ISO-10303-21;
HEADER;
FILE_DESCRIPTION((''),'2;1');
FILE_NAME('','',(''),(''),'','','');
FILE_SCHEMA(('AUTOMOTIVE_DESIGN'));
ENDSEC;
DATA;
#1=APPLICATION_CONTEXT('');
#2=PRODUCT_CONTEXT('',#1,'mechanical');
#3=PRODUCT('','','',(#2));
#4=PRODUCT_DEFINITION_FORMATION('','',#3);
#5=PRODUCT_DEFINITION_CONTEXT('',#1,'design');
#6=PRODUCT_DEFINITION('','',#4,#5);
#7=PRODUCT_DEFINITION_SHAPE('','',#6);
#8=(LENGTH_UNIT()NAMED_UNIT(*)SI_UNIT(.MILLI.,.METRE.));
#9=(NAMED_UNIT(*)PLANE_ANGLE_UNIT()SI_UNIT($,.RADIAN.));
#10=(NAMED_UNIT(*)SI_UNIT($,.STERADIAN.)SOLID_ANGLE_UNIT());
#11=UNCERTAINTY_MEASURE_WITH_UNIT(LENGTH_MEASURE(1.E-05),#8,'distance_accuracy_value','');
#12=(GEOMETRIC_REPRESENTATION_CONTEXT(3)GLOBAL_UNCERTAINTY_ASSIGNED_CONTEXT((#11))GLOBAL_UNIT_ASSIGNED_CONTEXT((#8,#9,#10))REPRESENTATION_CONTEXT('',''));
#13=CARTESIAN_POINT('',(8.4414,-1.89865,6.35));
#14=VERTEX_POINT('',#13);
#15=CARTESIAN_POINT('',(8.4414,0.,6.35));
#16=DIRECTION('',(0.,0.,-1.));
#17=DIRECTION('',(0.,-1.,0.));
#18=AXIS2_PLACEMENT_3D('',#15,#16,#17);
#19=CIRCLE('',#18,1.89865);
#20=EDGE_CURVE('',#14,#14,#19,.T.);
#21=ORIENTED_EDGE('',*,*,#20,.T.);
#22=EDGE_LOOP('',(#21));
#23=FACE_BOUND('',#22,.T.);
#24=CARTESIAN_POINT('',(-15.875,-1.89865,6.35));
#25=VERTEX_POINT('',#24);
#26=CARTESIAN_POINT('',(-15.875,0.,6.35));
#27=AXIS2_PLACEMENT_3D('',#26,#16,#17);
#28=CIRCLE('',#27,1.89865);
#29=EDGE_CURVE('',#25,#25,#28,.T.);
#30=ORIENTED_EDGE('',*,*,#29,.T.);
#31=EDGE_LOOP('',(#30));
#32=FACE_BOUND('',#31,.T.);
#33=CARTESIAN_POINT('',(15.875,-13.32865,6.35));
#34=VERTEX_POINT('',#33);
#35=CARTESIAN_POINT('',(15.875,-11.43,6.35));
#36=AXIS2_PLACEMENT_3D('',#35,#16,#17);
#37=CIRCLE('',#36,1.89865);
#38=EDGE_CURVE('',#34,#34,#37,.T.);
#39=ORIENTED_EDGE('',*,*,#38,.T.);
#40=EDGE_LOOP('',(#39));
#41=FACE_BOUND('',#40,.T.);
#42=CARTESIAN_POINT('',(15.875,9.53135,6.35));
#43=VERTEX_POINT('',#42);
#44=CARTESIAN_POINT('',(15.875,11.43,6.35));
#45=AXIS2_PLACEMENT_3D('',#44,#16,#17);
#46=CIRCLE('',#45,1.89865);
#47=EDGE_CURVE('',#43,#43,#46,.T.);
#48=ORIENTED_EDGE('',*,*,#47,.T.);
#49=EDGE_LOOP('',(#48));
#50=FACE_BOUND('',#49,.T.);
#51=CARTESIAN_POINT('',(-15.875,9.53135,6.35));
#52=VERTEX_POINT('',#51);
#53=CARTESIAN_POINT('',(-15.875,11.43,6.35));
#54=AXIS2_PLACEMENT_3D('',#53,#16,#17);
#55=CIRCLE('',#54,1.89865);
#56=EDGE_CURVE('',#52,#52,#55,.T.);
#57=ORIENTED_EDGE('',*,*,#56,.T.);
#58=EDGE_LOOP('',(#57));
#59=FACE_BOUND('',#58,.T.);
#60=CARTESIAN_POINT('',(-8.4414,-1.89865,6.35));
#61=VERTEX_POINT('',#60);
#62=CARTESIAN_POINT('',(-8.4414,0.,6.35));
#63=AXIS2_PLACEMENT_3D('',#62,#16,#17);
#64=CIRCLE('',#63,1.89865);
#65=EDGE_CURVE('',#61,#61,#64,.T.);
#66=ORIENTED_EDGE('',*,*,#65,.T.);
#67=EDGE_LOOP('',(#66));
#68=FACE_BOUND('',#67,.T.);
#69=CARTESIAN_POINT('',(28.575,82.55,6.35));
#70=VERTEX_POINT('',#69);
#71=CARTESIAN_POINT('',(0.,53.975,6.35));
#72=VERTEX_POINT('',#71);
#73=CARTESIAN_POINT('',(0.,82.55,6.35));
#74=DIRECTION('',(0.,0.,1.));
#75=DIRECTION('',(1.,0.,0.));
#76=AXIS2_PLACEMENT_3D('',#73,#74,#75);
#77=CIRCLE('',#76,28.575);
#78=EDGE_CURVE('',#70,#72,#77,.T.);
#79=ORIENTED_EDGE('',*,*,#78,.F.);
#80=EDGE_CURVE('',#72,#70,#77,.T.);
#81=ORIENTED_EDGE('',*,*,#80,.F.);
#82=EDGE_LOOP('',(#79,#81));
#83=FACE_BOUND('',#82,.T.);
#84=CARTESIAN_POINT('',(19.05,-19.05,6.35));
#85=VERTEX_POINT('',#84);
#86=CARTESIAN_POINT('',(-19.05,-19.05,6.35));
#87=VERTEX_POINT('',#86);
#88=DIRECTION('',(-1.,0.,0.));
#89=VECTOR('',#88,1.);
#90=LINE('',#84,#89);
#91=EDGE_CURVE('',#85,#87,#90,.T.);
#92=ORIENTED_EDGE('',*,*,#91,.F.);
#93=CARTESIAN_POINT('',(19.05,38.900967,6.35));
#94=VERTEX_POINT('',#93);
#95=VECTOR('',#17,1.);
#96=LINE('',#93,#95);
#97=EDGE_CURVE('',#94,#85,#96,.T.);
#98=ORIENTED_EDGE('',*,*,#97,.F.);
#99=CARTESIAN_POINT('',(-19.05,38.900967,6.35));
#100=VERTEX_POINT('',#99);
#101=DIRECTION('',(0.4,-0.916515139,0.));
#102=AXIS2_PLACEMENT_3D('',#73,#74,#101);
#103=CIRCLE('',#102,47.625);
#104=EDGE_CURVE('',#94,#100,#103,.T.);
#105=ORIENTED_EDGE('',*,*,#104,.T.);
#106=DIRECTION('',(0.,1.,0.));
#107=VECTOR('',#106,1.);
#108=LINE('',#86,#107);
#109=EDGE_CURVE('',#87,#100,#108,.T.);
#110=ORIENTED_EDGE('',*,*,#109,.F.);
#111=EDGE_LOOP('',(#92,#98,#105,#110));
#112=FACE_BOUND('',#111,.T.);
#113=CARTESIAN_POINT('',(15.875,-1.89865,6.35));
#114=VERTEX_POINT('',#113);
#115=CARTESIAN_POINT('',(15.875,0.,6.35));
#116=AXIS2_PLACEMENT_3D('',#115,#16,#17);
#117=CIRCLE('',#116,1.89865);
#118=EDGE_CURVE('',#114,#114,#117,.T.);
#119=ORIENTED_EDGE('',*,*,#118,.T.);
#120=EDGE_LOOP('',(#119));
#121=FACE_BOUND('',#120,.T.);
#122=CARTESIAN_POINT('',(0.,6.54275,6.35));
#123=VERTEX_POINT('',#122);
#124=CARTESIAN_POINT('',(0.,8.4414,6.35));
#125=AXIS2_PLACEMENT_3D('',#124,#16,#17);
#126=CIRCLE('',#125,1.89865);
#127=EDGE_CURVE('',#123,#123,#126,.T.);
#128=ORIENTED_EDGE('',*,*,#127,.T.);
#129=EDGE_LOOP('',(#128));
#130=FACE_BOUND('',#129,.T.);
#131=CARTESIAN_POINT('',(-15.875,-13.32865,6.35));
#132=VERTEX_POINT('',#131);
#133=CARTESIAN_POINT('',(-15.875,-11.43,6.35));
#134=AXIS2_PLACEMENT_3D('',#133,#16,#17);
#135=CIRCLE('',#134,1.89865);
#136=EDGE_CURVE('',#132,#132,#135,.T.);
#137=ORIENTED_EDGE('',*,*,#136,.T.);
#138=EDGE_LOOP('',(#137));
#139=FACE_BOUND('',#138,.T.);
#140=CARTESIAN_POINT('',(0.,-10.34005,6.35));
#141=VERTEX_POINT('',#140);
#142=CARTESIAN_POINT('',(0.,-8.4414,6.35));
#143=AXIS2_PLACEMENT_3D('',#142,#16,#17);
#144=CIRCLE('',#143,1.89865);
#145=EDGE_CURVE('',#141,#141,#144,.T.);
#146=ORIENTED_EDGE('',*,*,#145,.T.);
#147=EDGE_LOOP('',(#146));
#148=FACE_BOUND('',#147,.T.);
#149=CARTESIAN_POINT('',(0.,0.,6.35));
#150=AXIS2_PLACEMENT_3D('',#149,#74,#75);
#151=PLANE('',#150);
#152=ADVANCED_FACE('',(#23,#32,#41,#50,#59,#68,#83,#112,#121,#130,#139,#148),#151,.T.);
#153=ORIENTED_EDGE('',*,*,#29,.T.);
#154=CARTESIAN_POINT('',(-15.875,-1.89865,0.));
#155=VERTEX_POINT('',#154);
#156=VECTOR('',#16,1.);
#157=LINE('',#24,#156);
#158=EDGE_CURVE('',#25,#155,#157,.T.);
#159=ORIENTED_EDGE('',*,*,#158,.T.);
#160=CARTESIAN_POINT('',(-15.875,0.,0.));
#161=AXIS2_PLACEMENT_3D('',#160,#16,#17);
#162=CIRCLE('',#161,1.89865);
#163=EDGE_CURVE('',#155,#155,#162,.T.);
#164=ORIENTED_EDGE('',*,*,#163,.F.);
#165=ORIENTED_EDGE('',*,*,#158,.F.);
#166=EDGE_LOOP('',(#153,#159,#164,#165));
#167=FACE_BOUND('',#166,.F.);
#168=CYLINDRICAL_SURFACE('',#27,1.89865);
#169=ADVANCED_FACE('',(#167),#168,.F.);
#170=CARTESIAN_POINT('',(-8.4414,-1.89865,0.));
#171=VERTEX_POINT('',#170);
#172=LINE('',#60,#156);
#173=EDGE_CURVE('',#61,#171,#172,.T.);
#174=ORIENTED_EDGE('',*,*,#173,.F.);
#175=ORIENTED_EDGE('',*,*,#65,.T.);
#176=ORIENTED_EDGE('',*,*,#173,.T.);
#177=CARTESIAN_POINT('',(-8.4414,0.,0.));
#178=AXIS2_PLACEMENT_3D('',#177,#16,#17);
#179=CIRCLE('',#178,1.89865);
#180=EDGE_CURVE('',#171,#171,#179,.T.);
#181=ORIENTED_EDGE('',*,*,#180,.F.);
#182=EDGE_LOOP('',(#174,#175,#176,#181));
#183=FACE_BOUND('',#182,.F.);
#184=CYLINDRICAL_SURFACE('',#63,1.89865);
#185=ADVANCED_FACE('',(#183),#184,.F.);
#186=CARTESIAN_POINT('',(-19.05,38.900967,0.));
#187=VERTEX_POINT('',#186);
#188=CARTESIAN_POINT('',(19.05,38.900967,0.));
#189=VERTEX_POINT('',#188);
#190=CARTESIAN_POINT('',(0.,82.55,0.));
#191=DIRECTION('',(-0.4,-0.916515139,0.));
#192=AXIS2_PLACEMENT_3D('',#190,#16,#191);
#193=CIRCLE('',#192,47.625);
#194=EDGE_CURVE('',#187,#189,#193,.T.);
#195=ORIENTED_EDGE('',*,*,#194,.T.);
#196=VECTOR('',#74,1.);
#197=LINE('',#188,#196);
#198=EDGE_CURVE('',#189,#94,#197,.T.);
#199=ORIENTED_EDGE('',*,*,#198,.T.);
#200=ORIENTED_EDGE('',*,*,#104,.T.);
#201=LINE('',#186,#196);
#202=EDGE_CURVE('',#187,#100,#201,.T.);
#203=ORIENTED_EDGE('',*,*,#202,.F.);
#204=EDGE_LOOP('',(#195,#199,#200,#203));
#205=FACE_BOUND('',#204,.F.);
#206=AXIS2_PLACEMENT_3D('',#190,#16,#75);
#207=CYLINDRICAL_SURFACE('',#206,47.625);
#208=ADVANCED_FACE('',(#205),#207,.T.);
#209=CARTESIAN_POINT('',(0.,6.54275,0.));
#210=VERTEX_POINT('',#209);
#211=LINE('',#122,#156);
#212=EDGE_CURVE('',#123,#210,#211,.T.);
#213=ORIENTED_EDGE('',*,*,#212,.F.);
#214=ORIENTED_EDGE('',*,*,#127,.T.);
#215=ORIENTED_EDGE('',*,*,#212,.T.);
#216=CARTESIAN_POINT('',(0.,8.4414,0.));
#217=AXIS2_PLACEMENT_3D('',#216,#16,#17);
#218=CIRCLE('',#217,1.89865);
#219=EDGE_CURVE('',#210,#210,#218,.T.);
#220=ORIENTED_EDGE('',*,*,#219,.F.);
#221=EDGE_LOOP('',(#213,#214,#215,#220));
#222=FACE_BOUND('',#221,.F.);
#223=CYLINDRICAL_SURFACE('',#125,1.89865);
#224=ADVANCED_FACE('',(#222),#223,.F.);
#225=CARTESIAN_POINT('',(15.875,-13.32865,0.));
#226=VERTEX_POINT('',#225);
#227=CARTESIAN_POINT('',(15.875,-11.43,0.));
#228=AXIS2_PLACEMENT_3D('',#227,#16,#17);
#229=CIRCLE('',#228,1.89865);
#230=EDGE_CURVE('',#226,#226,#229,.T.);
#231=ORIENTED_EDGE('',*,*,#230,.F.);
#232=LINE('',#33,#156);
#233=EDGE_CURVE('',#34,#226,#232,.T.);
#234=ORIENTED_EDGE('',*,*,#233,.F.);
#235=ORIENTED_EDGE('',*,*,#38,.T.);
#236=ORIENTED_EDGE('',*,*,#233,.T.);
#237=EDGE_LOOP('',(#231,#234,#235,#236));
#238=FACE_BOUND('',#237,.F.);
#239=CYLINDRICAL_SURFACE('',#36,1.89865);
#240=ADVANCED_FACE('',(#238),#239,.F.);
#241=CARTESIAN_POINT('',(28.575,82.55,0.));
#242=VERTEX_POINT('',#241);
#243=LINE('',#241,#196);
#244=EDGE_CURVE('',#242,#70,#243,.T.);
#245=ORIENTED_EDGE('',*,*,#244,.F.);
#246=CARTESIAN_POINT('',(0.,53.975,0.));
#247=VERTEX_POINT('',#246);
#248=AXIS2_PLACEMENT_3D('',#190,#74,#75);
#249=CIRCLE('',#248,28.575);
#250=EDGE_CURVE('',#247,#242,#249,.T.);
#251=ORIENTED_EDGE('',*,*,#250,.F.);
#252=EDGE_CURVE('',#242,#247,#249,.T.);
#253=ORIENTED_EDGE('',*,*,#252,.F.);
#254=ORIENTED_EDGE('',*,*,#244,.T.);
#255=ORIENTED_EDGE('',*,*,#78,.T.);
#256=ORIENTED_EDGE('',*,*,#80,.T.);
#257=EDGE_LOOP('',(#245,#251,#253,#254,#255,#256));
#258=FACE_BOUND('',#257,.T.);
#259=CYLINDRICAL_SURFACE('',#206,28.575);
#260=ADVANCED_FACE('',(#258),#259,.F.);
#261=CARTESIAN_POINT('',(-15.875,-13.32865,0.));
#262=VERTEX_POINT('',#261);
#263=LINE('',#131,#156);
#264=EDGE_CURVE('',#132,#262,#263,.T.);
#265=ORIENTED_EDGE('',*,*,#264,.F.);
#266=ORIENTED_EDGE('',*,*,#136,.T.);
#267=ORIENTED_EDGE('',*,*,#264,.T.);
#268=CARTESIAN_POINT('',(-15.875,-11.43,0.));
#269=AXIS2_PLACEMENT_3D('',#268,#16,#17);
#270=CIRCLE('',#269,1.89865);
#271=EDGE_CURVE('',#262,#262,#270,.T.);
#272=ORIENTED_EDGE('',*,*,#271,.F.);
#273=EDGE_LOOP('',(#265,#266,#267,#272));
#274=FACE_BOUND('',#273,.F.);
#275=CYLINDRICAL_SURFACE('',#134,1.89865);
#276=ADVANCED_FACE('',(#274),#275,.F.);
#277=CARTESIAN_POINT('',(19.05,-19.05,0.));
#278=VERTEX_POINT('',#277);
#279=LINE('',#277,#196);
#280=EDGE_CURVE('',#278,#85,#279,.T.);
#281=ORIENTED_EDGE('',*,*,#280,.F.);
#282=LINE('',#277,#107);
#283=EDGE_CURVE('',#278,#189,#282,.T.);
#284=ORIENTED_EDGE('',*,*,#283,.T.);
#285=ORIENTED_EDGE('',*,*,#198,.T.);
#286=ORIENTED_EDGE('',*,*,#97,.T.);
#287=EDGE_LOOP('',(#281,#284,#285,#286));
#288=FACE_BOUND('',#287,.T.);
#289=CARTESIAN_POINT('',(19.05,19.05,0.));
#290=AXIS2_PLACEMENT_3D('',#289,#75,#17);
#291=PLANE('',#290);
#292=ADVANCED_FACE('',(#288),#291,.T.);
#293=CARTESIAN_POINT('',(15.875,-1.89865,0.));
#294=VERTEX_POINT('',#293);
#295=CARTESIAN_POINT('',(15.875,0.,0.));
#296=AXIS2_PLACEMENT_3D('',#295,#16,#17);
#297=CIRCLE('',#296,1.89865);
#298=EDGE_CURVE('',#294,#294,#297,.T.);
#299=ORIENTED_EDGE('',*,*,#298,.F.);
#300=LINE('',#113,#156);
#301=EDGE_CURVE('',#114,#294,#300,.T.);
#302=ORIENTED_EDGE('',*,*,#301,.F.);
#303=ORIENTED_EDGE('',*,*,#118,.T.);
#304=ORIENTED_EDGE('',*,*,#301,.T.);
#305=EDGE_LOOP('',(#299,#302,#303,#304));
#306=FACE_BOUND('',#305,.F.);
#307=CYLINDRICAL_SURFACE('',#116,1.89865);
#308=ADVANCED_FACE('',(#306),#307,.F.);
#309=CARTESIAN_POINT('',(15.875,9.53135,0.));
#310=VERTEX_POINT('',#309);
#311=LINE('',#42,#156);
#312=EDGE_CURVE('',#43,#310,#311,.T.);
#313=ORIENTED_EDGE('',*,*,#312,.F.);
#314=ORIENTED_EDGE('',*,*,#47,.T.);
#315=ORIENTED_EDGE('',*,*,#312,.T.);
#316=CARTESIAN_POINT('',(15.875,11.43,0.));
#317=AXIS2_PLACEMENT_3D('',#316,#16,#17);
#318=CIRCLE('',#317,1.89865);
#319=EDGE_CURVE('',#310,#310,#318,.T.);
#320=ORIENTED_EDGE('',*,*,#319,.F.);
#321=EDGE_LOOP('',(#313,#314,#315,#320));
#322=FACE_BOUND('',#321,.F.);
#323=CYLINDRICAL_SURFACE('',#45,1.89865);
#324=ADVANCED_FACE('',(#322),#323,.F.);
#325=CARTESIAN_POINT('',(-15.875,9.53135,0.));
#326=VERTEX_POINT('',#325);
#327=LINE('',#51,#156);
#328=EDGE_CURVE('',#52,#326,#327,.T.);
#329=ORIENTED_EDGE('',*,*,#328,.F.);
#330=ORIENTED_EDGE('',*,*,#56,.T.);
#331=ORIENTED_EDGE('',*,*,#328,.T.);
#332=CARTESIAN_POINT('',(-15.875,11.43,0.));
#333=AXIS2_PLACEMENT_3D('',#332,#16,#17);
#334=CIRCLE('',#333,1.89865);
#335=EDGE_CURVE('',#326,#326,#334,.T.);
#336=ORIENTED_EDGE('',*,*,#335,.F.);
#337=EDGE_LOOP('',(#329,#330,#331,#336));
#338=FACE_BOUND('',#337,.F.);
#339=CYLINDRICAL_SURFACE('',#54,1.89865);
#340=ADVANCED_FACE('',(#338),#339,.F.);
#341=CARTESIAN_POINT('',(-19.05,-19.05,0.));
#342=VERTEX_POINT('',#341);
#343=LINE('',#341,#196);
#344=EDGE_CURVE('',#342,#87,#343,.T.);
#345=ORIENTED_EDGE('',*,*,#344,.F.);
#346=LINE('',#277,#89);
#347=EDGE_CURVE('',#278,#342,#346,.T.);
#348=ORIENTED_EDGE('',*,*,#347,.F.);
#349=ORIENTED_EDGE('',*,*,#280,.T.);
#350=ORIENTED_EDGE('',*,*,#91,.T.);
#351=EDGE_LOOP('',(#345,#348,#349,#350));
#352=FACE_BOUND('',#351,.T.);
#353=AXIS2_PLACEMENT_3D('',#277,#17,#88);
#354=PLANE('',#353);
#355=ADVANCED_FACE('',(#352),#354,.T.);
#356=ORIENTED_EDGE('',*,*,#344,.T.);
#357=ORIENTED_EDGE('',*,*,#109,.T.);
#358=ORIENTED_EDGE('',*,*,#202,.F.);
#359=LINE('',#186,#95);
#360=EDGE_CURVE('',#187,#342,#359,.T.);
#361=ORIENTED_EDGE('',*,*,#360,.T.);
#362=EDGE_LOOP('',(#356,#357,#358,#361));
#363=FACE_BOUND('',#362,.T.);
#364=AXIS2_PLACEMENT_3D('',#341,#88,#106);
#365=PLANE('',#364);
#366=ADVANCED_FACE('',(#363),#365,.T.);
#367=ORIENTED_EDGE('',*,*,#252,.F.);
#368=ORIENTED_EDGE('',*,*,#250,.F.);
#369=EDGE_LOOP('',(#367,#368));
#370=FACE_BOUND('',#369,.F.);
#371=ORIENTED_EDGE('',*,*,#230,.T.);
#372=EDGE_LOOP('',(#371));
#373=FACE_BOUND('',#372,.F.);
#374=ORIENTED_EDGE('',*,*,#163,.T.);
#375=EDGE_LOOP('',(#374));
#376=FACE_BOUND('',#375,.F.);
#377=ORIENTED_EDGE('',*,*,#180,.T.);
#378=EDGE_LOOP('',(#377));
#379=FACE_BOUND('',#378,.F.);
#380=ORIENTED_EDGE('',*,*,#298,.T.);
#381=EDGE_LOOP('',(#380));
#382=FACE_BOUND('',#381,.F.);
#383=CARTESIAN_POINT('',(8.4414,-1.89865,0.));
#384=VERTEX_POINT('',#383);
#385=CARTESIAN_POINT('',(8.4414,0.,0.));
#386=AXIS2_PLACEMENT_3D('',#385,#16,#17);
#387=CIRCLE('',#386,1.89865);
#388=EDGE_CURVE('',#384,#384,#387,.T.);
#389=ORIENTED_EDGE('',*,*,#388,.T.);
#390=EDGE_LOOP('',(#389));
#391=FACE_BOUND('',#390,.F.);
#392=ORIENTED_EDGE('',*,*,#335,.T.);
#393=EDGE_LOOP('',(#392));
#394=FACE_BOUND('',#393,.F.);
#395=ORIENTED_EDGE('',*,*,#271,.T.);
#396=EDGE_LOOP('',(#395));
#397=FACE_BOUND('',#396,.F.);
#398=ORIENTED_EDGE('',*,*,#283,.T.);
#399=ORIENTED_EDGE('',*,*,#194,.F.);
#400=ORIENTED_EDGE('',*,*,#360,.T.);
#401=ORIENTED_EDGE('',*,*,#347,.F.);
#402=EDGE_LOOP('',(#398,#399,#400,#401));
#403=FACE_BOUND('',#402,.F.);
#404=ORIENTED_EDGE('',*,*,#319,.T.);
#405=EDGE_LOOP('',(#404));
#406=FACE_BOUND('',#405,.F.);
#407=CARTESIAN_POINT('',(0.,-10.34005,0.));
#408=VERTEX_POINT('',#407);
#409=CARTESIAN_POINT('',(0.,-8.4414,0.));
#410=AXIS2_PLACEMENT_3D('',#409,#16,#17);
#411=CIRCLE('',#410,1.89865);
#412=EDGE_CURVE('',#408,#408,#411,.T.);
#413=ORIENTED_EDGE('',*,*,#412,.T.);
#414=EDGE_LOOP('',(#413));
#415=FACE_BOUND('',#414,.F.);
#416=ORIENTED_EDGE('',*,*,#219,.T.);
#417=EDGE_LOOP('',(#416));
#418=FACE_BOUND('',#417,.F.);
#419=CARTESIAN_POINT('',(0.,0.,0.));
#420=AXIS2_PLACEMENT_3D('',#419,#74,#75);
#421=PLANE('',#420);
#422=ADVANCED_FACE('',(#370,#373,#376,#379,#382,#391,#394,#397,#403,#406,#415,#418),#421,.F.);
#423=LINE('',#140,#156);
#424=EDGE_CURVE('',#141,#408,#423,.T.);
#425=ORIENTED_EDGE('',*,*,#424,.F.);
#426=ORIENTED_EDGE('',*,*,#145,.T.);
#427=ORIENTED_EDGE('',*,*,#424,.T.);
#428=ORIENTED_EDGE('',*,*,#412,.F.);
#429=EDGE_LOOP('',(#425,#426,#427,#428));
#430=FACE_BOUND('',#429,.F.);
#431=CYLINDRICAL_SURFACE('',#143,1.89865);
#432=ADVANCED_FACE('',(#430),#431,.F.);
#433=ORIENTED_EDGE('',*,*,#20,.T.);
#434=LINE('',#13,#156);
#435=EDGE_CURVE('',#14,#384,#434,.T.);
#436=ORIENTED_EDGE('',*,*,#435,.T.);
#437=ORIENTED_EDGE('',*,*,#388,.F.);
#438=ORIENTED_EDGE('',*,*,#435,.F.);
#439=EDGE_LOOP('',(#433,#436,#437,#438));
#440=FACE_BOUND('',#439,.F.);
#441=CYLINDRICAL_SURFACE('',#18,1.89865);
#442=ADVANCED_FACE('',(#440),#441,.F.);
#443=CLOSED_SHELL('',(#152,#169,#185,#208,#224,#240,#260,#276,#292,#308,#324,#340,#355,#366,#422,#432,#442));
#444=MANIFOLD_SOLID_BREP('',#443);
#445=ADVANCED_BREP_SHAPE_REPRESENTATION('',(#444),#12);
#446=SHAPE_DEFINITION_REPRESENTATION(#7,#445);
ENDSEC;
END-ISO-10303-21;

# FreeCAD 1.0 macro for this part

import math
import FreeCAD as App
import Part
import Sketcher
Q = App.Units.Quantity

doc = App.newDocument("Part")
body = doc.addObject("PartDesign::Body", "Body")

# Sketch on XY plane
sketch1 = body.newObject("Sketcher::SketchObject", "Sketch")
sketch1.AttachmentSupport = (doc.getObject("XY_Plane"), [""])
sketch1.MapMode = "FlatFace"
sketch1.addGeometry([
    Part.LineSegment(App.Vector(-19, -19, 0), App.Vector(19, -19, 0)),  # 0
    Part.LineSegment(App.Vector(19, -19, 0), App.Vector(19, 39, 0)),  # 1
    Part.ArcOfCircle(Part.Circle(App.Vector(0, 83, 0), App.Vector(0, 0, 1), 48), math.radians(-66), math.radians(246)),  # 2
    Part.LineSegment(App.Vector(-19, 39, 0), App.Vector(-19, -19, 0)),  # 3
    Part.Circle(App.Vector(0, 83, 0), App.Vector(0, 0, 1), 29),  # 4
], False)
sketch1.addConstraint([
    Sketcher.Constraint("Coincident", 0, 2, 1, 1),
    Sketcher.Constraint("Coincident", 1, 2, 2, 1),
    Sketcher.Constraint("Coincident", 2, 2, 3, 1),
    Sketcher.Constraint("Coincident", 3, 2, 0, 1),
    Sketcher.Constraint("Horizontal", 0),
    Sketcher.Constraint("Vertical", 1),
    Sketcher.Constraint("Vertical", 3),
    Sketcher.Constraint("Coincident", 4, 3, 2, 3),
    Sketcher.Constraint("Symmetric", 1, 2, 2, 2, -2),
    Sketcher.Constraint("Diameter", 4, Q("2.25 in")),
    Sketcher.Constraint("DistanceX", 0, 1, 0, 2, Q("1.5 in")),
    Sketcher.Constraint("Radius", 2, Q("1.875 in")),
    Sketcher.Constraint("DistanceY", 0, 2, 2, 3, Q("4 in")),
    Sketcher.Constraint("DistanceY", -1, 1, 2, 3, Q("3.25 in")),
])
pad1 = body.newObject("PartDesign::Pad", "Pad")
pad1.Profile = sketch1
pad1.Length = Q("0.25 in")

# Sketch on XY plane
sketch2 = body.newObject("Sketcher::SketchObject", "Sketch001")
sketch2.AttachmentSupport = (doc.getObject("XY_Plane"), [""])
sketch2.MapMode = "FlatFace"
sketch2.AttachmentOffset = App.Placement(App.Vector(0, 0, 0.25 * 25.4), App.Rotation())
sketch2.addGeometry([
    Part.Circle(App.Vector(-15.9, 11.4, 0), App.Vector(0, 0, 1), 1.9),  # 0
    Part.Circle(App.Vector(-15.9, 0, 0), App.Vector(0, 0, 1), 1.9),  # 1
    Part.Circle(App.Vector(-15.9, -11.4, 0), App.Vector(0, 0, 1), 1.9),  # 2
    Part.Circle(App.Vector(15.9, -11.4, 0), App.Vector(0, 0, 1), 1.9),  # 3
    Part.Circle(App.Vector(15.9, 0, 0), App.Vector(0, 0, 1), 1.9),  # 4
    Part.Circle(App.Vector(15.9, 11.4, 0), App.Vector(0, 0, 1), 1.9),  # 5
    Part.Circle(App.Vector(0, 8.4, 0), App.Vector(0, 0, 1), 1.9),  # 6
    Part.Circle(App.Vector(0, -8.4, 0), App.Vector(0, 0, 1), 1.9),  # 7
    Part.Circle(App.Vector(8.4, 0, 0), App.Vector(0, 0, 1), 1.9),  # 8
    Part.Circle(App.Vector(-8.4, 0, 0), App.Vector(0, 0, 1), 1.9),  # 9
], False)
sketch2.addConstraint([
    Sketcher.Constraint("Equal", 0, 1),
    Sketcher.Constraint("Equal", 1, 2),
    Sketcher.Constraint("Equal", 2, 3),
    Sketcher.Constraint("Equal", 3, 4),
    Sketcher.Constraint("Equal", 4, 5),
    Sketcher.Constraint("Equal", 5, 6),
    Sketcher.Constraint("Equal", 6, 7),
    Sketcher.Constraint("Equal", 7, 8),
    Sketcher.Constraint("Equal", 8, 9),
    Sketcher.Constraint("Symmetric", 0, 3, 3, 3, -1, 1),
    Sketcher.Constraint("Symmetric", 1, 3, 4, 3, -1, 1),
    Sketcher.Constraint("Symmetric", 2, 3, 5, 3, -1, 1),
    Sketcher.Constraint("Symmetric", 6, 3, 7, 3, -1, 1),
    Sketcher.Constraint("Symmetric", 8, 3, 9, 3, -1, 1),
    Sketcher.Constraint("Symmetric", 2, 3, 3, 3, -2),
    Sketcher.Constraint("PointOnObject", 1, 3, -1),
    Sketcher.Constraint("PointOnObject", 6, 3, -2),
    Sketcher.Constraint("PointOnObject", 8, 3, -1),
    Sketcher.Constraint("Vertical", 0, 3, 1, 3),
    Sketcher.Constraint("Diameter", 0, Q("0.1495 in")),
    Sketcher.Constraint("DistanceY", 2, 3, 0, 3, Q("0.9 in")),
    Sketcher.Constraint("DistanceX", 2, 3, 3, 3, Q("1.25 in")),
    Sketcher.Constraint("DistanceY", -1, 1, 6, 3, 8.4414),
    Sketcher.Constraint("DistanceX", -1, 1, 8, 3, 8.4414),
])
doc.recompute()
hole = body.newObject("PartDesign::Hole", "Hole")
hole.Profile = sketch2
hole.ThreadType = "None"
hole.Diameter = Q("0.1495 in")
hole.DepthType = "ThroughAll"

doc.recompute()
